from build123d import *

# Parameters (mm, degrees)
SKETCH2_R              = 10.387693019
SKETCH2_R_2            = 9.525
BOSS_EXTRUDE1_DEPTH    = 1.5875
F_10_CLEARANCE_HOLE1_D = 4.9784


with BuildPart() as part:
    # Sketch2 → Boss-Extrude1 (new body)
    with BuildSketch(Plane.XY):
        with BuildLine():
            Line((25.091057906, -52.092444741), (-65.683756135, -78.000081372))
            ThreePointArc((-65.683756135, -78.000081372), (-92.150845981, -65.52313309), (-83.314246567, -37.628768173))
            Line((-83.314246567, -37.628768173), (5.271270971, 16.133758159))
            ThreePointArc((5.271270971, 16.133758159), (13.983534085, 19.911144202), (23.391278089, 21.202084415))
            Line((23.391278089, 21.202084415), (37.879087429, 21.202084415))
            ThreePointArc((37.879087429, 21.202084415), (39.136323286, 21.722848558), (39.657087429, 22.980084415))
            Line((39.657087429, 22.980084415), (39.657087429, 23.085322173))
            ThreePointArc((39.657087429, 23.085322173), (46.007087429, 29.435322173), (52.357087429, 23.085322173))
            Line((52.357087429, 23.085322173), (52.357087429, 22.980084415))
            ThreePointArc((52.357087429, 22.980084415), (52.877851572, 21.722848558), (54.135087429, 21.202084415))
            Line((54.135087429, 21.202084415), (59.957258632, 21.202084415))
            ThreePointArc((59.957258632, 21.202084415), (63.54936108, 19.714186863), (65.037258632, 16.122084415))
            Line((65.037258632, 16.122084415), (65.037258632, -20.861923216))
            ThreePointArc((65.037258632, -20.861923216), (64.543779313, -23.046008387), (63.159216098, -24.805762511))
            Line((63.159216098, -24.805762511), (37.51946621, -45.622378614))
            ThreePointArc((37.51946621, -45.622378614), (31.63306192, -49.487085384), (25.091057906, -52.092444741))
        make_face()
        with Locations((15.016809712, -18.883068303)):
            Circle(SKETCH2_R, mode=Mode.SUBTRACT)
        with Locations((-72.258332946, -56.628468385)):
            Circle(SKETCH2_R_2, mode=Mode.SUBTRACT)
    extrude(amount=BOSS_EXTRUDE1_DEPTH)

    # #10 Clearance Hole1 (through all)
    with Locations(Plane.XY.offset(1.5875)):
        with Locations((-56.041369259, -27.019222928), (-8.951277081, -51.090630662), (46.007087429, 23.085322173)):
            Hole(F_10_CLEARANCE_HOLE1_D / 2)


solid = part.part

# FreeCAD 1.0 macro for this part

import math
import FreeCAD as App
import Part
import Sketcher
from FreeCAD import Vector
Q = App.Units.Quantity

doc = App.newDocument("Part")
body = doc.addObject("PartDesign::Body", "Body")

# Sketch on XY plane
sketch1 = body.newObject("Sketcher::SketchObject", "Sketch")
sketch1.AttachmentSupport = (doc.getObject("XY_Plane"), [""])
sketch1.MapMode = "FlatFace"
sketch1.addGeometry([
    Part.LineSegment(Vector(-65.68, -78, 0), Vector(25.09, -52.09, 0)),  # 0
    Part.ArcOfCircle(Part.Circle(Vector(15.51, -18.51, 0), Vector(0, 0, 1), 34.93), math.radians(-74), math.radians(-51)),  # 1
    Part.LineSegment(Vector(37.52, -45.62, 0), Vector(63.16, -24.81, 0)),  # 2
    Part.ArcOfCircle(Part.Circle(Vector(59.96, -20.86, 0), Vector(0, 0, 1), 5.08), math.radians(-51), math.radians(0)),  # 3
    Part.LineSegment(Vector(65.04, -20.86, 0), Vector(65.04, 16.12, 0)),  # 4
    Part.ArcOfCircle(Part.Circle(Vector(59.96, 16.12, 0), Vector(0, 0, 1), 5.08), math.radians(0), math.radians(90)),  # 5
    Part.LineSegment(Vector(59.96, 21.2, 0), Vector(54.14, 21.2, 0)),  # 6
    Part.ArcOfCircle(Part.Circle(Vector(54.14, 22.98, 0), Vector(0, 0, 1), 1.78), math.radians(180), math.radians(270)),  # 7
    Part.LineSegment(Vector(52.36, 22.98, 0), Vector(52.36, 23.09, 0)),  # 8
    Part.ArcOfCircle(Part.Circle(Vector(46.01, 23.09, 0), Vector(0, 0, 1), 6.35), math.radians(0), math.radians(180)),  # 9
    Part.LineSegment(Vector(39.66, 23.09, 0), Vector(39.66, 22.98, 0)),  # 10
    Part.ArcOfCircle(Part.Circle(Vector(37.88, 22.98, 0), Vector(0, 0, 1), 1.78), math.radians(-90), math.radians(0)),  # 11
    Part.LineSegment(Vector(37.88, 21.2, 0), Vector(23.39, 21.2, 0)),  # 12
    Part.ArcOfCircle(Part.Circle(Vector(23.39, -13.72, 0), Vector(0, 0, 1), 34.93), math.radians(90), math.radians(121)),  # 13
    Part.LineSegment(Vector(5.27, 16.13, 0), Vector(-83.31, -37.63, 0)),  # 14
    Part.ArcOfCircle(Part.Circle(Vector(-71.78, -56.63, 0), Vector(0, 0, 1), 22.23), math.radians(121), math.radians(286)),  # 15
    Part.Circle(Vector(-72.26, -56.63, 0), Vector(0, 0, 1), 9.53),  # 16
    Part.Circle(Vector(15.02, -18.88, 0), Vector(0, 0, 1), 10.39),  # 17
], False)
sketch1.addConstraint([
    Sketcher.Constraint("Tangent", 0, 2, 1, 1),
    Sketcher.Constraint("Tangent", 1, 2, 2, 1),
    Sketcher.Constraint("Tangent", 2, 2, 3, 1),
    Sketcher.Constraint("Tangent", 3, 2, 4, 1),
    Sketcher.Constraint("Tangent", 4, 2, 5, 1),
    Sketcher.Constraint("Tangent", 5, 2, 6, 1),
    Sketcher.Constraint("Tangent", 6, 2, 7, 2),
    Sketcher.Constraint("Tangent", 7, 1, 8, 1),
    Sketcher.Constraint("Tangent", 8, 2, 9, 1),
    Sketcher.Constraint("Tangent", 9, 2, 10, 1),
    Sketcher.Constraint("Tangent", 10, 2, 11, 2),
    Sketcher.Constraint("Tangent", 11, 1, 12, 1),
    Sketcher.Constraint("Tangent", 12, 2, 13, 1),
    Sketcher.Constraint("Tangent", 13, 2, 14, 1),
    Sketcher.Constraint("Tangent", 14, 2, 15, 1),
    Sketcher.Constraint("Tangent", 15, 2, 0, 1),
    Sketcher.Constraint("Vertical", 4),
    Sketcher.Constraint("Horizontal", 6),
    Sketcher.Constraint("Vertical", 8),
    Sketcher.Constraint("Vertical", 10),
    Sketcher.Constraint("Horizontal", 12),
    Sketcher.Constraint("Equal", 3, 5),
    Sketcher.Constraint("Equal", 7, 11),
    Sketcher.Constraint("Equal", 1, 13),
    Sketcher.Constraint("Horizontal", 7, 3, 11, 3),
    Sketcher.Constraint("Horizontal", 15, 3, 16, 3),
    Sketcher.Constraint("Radius", 3, Q("0.2 in")),
    Sketcher.Constraint("Diameter", 16, Q("0.75 in")),
    Sketcher.Constraint("Radius", 7, Q("0.07 in")),
    Sketcher.Constraint("Radius", 9, Q("0.25 in")),
    Sketcher.Constraint("Radius", 1, Q("1.375 in")),
    Sketcher.Constraint("Radius", 15, Q("0.875 in")),
    Sketcher.Constraint("Diameter", 17, Q("20.775386 mm")),
    Sketcher.Constraint("DistanceX", 6, 2, 6, 1, Q("5.822171 mm")),
    Sketcher.Constraint("DistanceX", 12, 2, 12, 1, Q("14.487809 mm")),
    Sketcher.Constraint("DistanceX", 16, 3, 15, 3, Q("0.475 mm")),
    Sketcher.Constraint("DistanceX", 17, 3, 1, 3, Q("0.489199 mm")),
    Sketcher.Constraint("DistanceX", 0, 2, 3, 3, Q("34.866201 mm")),
    Sketcher.Constraint("DistanceY", 16, 3, 14, 2, Q("18.9997 mm")),
    Sketcher.Constraint("DistanceY", 14, 2, 17, 3, Q("18.7457 mm")),
    Sketcher.Constraint("Distance", 14, Q("103.623372 mm")),
    Sketcher.Constraint("DistanceY", 4, 1, 4, 2, Q("36.984008 mm")),
    Sketcher.Constraint("DistanceY", 8, 1, 8, 2, Q("0.105238 mm")),
    Sketcher.Constraint("DistanceX", -1, 1, 1, 3, Q("15.506009 mm")),
    Sketcher.Constraint("DistanceX", -1, 1, 3, 3, Q("59.957259 mm")),
    Sketcher.Constraint("DistanceY", 15, 3, -1, 1, Q("56.62847 mm")),
])
pad1 = body.newObject("PartDesign::Pad", "Pad")
pad1.Profile = sketch1
pad1.Length = Q("0.0625 in")

# Sketch on XY plane
sketch2 = body.newObject("Sketcher::SketchObject", "Sketch001")
sketch2.AttachmentSupport = (doc.getObject("XY_Plane"), [""])
sketch2.MapMode = "FlatFace"
sketch2.AttachmentOffset = App.Placement(Vector(0, 0, 0.0625 * 25.4), App.Rotation())
sketch2.addGeometry([
    Part.Circle(Vector(-56, -27, 0), Vector(0, 0, 1), 2.5),
    Part.Circle(Vector(-9, -51.1, 0), Vector(0, 0, 1), 2.5),
    Part.Circle(Vector(46, 23.1, 0), Vector(0, 0, 1), 2.5),
], False)
sketch2.addConstraint([
    Sketcher.Constraint("Equal", 0, 1),
    Sketcher.Constraint("Equal", 1, 2),
    Sketcher.Constraint("Diameter", 0, Q("0.196 in")),
    Sketcher.Constraint("DistanceX", 0, 3, -1, 1, Q("56.041369 mm")),
    Sketcher.Constraint("DistanceY", 1, 3, -1, 1, Q("51.090631 mm")),
    Sketcher.Constraint("DistanceY", 0, 3, -1, 1, Q("27.019223 mm")),
    Sketcher.Constraint("DistanceX", 1, 3, -1, 1, Q("8.951277 mm")),
    Sketcher.Constraint("DistanceX", -1, 1, 2, 3, Q("46.007087 mm")),
    Sketcher.Constraint("DistanceY", -1, 1, 2, 3, Q("23.085322 mm")),
])
doc.recompute()
hole = body.newObject("PartDesign::Hole", "Hole")
hole.Profile = sketch2
hole.ThreadType = "None"
hole.Diameter = Q("0.196 in")
hole.DepthType = "ThroughAll"

doc.recompute()
